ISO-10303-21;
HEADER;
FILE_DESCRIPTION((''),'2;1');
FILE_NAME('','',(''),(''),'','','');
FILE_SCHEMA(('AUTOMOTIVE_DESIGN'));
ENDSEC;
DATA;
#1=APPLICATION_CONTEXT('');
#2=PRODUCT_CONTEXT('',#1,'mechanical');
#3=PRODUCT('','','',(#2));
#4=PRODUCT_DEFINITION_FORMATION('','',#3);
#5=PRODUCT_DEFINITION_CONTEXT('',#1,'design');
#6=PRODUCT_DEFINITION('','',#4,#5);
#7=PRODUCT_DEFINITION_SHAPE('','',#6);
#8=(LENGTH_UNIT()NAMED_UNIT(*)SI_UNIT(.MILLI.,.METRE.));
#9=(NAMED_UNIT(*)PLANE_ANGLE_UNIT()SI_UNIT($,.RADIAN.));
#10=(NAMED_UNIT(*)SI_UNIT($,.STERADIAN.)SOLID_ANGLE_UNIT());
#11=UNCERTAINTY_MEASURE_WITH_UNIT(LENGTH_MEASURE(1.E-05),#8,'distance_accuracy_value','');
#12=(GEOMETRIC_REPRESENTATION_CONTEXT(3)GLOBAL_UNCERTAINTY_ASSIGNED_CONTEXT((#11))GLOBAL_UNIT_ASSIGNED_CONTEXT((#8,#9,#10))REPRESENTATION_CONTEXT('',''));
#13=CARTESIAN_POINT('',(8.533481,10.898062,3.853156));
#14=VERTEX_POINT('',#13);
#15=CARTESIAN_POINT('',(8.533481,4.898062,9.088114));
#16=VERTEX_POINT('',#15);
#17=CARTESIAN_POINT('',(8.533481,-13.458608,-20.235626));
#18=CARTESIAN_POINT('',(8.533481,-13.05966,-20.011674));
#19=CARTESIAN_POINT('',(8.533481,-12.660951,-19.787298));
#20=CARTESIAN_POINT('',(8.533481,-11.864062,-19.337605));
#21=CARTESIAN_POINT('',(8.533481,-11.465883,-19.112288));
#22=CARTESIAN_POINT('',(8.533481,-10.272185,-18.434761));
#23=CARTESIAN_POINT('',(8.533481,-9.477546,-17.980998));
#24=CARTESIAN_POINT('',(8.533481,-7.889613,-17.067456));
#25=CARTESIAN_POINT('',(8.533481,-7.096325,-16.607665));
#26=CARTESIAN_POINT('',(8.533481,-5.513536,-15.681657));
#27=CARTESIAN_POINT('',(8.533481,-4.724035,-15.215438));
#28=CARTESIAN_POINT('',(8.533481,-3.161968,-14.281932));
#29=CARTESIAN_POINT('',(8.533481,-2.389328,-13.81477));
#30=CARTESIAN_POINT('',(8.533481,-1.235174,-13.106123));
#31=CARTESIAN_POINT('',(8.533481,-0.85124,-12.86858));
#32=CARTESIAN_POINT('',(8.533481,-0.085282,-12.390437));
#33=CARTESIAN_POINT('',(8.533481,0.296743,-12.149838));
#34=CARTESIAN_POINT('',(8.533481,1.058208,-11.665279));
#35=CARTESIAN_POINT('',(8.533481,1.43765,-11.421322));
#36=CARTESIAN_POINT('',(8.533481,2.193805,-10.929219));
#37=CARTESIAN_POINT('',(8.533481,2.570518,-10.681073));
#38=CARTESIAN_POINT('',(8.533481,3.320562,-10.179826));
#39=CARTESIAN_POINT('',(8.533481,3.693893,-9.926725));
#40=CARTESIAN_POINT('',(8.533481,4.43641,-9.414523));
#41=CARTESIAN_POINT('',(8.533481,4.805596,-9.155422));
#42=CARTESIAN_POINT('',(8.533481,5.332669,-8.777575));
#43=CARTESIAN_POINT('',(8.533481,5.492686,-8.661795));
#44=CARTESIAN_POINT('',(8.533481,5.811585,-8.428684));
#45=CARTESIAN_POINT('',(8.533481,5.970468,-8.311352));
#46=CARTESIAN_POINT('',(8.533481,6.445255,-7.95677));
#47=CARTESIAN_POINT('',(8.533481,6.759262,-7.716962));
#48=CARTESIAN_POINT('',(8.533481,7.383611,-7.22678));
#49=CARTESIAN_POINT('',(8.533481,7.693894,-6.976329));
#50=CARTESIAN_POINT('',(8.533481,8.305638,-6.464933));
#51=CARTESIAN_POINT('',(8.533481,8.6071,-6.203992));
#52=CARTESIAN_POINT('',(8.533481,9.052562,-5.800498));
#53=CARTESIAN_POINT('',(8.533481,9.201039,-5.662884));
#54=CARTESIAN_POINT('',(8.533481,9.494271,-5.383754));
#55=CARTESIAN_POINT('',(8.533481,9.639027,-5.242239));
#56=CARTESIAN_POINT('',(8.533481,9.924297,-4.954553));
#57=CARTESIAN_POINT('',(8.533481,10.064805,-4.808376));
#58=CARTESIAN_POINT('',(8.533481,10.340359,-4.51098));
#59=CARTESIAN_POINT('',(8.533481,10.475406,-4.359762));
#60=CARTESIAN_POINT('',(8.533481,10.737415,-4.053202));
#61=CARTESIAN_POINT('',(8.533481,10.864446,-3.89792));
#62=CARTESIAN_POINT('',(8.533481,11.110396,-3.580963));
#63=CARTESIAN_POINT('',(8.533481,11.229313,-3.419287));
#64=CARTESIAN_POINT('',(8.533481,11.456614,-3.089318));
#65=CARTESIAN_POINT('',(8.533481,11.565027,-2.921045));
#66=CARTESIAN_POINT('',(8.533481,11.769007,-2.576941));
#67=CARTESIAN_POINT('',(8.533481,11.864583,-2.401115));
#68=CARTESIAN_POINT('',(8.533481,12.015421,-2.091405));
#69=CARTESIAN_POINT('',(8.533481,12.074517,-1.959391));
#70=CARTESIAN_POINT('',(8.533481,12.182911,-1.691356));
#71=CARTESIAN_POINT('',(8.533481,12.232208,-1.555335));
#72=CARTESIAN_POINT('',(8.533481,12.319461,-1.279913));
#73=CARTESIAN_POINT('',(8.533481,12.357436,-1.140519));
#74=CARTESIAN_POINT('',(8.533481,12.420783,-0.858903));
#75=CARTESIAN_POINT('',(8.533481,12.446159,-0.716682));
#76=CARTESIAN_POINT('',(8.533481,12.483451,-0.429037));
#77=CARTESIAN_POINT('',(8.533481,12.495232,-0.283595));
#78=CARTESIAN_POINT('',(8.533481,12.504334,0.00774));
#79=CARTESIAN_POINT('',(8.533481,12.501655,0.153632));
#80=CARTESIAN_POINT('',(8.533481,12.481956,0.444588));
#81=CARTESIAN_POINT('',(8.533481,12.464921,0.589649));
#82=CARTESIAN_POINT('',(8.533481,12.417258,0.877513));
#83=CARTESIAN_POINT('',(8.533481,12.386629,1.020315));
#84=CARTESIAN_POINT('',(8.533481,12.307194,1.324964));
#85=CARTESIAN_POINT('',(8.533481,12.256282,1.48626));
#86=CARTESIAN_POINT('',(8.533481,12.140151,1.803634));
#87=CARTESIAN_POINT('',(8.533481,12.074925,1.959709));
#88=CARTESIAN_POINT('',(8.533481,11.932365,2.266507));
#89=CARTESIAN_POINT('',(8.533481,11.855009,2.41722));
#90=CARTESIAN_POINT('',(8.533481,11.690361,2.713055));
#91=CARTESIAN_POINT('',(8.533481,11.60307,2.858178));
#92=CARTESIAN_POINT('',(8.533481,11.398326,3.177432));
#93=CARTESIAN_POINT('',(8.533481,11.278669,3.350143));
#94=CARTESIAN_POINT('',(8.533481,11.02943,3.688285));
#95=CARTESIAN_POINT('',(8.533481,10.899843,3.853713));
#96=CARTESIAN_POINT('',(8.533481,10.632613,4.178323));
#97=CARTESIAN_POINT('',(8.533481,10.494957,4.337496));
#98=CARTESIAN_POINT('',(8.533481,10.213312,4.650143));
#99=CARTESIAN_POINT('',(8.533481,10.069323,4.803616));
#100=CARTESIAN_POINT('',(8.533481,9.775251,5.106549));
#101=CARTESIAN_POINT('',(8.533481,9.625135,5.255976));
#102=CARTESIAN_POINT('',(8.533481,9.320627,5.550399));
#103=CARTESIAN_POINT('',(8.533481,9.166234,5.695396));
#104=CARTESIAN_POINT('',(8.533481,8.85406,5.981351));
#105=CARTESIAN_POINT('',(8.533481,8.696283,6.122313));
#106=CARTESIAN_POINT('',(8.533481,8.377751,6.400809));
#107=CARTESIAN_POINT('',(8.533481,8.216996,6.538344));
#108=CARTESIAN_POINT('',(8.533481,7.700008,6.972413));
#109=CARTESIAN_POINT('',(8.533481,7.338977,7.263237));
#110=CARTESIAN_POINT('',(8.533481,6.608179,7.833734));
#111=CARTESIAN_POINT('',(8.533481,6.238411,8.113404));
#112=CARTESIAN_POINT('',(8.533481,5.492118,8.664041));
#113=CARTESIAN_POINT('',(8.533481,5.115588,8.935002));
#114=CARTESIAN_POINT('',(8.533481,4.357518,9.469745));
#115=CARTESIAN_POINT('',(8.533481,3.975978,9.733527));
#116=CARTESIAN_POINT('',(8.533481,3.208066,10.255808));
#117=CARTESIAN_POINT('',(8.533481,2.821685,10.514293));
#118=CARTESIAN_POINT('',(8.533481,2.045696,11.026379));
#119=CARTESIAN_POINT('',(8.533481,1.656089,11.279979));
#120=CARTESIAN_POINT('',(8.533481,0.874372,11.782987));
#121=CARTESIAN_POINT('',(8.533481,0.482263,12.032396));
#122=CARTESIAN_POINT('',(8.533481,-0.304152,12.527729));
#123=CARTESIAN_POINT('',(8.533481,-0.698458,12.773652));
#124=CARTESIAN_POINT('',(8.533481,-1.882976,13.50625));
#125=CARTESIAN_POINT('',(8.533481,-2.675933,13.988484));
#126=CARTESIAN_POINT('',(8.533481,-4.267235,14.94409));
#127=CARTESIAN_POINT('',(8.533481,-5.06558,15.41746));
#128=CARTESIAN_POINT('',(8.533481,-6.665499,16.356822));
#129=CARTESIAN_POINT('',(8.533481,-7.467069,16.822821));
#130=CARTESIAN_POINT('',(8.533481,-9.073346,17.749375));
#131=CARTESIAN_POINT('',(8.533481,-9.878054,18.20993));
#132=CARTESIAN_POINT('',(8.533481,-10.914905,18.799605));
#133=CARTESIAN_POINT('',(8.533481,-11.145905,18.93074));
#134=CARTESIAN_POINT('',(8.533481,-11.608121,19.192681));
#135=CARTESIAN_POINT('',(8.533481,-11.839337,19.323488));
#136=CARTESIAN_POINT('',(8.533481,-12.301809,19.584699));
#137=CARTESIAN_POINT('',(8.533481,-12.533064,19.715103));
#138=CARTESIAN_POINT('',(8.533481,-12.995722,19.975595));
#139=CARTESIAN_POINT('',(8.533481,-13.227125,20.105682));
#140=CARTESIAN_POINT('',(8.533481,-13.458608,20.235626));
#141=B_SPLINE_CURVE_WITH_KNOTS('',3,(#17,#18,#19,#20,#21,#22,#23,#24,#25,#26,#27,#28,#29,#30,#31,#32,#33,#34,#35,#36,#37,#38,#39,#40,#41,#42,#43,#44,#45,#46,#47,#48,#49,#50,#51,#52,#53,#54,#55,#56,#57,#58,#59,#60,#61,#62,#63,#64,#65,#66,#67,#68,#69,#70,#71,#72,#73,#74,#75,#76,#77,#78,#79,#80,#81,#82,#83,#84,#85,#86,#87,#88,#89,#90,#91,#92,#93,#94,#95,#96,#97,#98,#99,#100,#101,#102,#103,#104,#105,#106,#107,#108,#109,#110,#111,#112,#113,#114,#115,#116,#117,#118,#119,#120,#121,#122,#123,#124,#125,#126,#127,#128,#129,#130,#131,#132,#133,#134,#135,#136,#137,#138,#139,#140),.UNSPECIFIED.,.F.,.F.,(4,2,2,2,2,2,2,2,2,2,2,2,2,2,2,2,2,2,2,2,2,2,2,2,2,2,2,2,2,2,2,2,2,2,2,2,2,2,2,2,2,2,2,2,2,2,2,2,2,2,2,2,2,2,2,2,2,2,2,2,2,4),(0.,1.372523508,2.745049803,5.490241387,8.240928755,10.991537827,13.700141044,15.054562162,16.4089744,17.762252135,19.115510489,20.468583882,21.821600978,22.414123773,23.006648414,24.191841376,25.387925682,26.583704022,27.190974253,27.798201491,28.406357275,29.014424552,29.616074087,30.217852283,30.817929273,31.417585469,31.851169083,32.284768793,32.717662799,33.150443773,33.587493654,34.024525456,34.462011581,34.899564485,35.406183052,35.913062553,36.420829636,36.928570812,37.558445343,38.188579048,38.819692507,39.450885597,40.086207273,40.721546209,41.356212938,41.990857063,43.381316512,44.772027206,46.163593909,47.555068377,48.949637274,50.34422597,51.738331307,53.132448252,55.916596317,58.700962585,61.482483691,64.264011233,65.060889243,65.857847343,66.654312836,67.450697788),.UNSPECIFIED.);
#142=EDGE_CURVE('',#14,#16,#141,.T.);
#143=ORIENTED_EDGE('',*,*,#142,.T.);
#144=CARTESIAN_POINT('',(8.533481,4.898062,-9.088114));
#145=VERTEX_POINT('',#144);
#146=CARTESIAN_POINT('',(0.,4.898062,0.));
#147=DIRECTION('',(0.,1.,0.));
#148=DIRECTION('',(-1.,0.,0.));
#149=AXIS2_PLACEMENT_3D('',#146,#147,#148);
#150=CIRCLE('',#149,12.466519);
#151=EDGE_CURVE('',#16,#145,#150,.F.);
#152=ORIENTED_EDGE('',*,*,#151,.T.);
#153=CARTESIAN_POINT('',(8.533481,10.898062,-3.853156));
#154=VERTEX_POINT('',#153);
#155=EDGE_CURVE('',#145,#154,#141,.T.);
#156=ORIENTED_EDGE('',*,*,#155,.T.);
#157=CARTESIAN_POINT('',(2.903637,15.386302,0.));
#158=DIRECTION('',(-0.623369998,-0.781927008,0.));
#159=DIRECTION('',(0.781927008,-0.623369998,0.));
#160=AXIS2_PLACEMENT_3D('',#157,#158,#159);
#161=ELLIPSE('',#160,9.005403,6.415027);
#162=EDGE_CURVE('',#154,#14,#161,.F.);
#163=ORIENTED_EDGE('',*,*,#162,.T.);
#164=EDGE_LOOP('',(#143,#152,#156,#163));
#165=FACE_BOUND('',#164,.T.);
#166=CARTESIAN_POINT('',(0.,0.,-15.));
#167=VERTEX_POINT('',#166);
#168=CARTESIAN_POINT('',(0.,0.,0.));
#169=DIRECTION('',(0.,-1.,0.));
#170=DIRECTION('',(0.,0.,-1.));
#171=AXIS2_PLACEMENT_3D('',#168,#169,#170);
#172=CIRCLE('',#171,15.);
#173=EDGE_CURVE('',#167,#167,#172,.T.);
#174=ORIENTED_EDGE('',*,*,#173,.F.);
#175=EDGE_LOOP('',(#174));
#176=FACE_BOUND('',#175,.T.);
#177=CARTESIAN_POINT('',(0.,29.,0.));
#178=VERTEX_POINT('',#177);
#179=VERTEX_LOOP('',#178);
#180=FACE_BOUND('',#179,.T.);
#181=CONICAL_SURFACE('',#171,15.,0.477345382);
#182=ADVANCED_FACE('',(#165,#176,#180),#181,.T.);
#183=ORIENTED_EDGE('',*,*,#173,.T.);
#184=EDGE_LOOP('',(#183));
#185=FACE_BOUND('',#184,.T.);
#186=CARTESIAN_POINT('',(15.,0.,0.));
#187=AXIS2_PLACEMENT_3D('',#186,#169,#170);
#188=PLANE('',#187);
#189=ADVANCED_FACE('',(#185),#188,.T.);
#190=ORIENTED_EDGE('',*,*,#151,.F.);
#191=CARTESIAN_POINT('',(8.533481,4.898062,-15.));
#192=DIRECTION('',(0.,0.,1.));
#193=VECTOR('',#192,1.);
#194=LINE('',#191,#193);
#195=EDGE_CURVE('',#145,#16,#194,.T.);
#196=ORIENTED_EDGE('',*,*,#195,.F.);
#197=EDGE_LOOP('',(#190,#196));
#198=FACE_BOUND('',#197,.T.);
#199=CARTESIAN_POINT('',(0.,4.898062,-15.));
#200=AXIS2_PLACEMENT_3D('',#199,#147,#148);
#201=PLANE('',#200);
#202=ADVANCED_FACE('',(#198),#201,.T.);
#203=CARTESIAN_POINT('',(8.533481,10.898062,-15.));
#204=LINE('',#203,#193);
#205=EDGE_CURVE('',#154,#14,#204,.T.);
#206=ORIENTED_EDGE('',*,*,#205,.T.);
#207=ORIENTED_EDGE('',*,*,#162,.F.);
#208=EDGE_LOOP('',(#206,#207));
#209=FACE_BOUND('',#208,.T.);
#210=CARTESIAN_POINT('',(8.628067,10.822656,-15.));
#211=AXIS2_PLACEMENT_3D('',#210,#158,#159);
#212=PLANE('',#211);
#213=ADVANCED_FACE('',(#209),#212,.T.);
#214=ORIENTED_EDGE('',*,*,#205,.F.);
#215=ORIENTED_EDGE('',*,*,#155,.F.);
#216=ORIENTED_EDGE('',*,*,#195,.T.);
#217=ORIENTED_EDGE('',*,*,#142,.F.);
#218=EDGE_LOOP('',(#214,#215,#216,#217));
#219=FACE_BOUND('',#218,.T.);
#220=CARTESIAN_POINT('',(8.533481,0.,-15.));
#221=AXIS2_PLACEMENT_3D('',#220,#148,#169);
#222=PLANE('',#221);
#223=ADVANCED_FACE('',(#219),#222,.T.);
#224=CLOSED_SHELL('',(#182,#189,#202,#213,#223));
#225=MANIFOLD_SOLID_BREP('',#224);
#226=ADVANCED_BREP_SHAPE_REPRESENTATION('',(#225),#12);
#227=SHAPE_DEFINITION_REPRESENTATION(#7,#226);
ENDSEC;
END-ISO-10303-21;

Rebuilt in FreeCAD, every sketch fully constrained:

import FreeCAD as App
import Part
import Sketcher

V = App.Vector

doc = App.newDocument("Part")
body = doc.addObject("PartDesign::Body", "Body")

sketch1 = doc.addObject("Sketcher::SketchObject", "Sketch")
body.addObject(sketch1)
sketch1.AttachmentSupport = (doc.XY_Plane, [""])
sketch1.MapMode = "FlatFace"
sketch1.addGeometry([
    Part.LineSegment(V(0, 29, 0), V(0, 0, 0)),
    Part.LineSegment(V(0, 0, 0), V(15, 0, 0)),
    Part.LineSegment(V(15, 0, 0), V(0, 29, 0)),
], False)
sketch1.addConstraint([
    Sketcher.Constraint("Coincident", 0, 2, 1, 1),
    Sketcher.Constraint("Coincident", 1, 2, 2, 1),
    Sketcher.Constraint("Coincident", 2, 2, 0, 1),
    Sketcher.Constraint("Vertical", 0),
    Sketcher.Constraint("Horizontal", 1),
    Sketcher.Constraint("Coincident", 0, 2, -1, 1),
    Sketcher.Constraint("DistanceX", 1, 1, 1, 2, 15.0),
    Sketcher.Constraint("DistanceY", 0, 2, 0, 1, 29.0),
])
revolution = doc.addObject("PartDesign::Revolution", "Revolution")
body.addObject(revolution)
revolution.Profile = sketch1
revolution.ReferenceAxis = (sketch1, ["V_Axis"])
revolution.Angle = 360

sketch2 = doc.addObject("Sketcher::SketchObject", "Sketch001")
body.addObject(sketch2)
sketch2.AttachmentSupport = (doc.XY_Plane, [""])
sketch2.MapMode = "FlatFace"
sketch2.addGeometry([
    Part.LineSegment(V(-12, 5, 0), V(9, 5, 0)),
    Part.LineSegment(V(9, 5, 0), V(9, 11, 0)),
    Part.LineSegment(V(9, 11, 0), V(-4, 21, 0)),
    Part.LineSegment(V(-4, 21, 0), V(-12, 5, 0)),
], False)
sketch2.addConstraint([
    Sketcher.Constraint("Coincident", 0, 2, 1, 1),
    Sketcher.Constraint("Coincident", 1, 2, 2, 1),
    Sketcher.Constraint("Coincident", 2, 2, 3, 1),
    Sketcher.Constraint("Coincident", 3, 2, 0, 1),
    Sketcher.Constraint("Horizontal", 0),
    Sketcher.Constraint("Vertical", 1),
    Sketcher.Constraint("DistanceX", 0, 1, 0, 2, 21.0),
    Sketcher.Constraint("DistanceY", 1, 1, 1, 2, 6.0),
    Sketcher.Constraint("DistanceY", -1, 1, 2, 2, 21.0),
    Sketcher.Constraint("Distance", 3, 18.128369),
    Sketcher.Constraint("DistanceX", -1, 1, 0, 2, 8.533481),
    Sketcher.Constraint("DistanceX", 2, 2, -1, 1, 4.137931),
])
pocket1 = doc.addObject("PartDesign::Pocket", "Pocket")
body.addObject(pocket1)
pocket1.Profile = sketch2
pocket1.Type = "ThroughAll"
pocket1.Midplane = True

doc.recompute()
